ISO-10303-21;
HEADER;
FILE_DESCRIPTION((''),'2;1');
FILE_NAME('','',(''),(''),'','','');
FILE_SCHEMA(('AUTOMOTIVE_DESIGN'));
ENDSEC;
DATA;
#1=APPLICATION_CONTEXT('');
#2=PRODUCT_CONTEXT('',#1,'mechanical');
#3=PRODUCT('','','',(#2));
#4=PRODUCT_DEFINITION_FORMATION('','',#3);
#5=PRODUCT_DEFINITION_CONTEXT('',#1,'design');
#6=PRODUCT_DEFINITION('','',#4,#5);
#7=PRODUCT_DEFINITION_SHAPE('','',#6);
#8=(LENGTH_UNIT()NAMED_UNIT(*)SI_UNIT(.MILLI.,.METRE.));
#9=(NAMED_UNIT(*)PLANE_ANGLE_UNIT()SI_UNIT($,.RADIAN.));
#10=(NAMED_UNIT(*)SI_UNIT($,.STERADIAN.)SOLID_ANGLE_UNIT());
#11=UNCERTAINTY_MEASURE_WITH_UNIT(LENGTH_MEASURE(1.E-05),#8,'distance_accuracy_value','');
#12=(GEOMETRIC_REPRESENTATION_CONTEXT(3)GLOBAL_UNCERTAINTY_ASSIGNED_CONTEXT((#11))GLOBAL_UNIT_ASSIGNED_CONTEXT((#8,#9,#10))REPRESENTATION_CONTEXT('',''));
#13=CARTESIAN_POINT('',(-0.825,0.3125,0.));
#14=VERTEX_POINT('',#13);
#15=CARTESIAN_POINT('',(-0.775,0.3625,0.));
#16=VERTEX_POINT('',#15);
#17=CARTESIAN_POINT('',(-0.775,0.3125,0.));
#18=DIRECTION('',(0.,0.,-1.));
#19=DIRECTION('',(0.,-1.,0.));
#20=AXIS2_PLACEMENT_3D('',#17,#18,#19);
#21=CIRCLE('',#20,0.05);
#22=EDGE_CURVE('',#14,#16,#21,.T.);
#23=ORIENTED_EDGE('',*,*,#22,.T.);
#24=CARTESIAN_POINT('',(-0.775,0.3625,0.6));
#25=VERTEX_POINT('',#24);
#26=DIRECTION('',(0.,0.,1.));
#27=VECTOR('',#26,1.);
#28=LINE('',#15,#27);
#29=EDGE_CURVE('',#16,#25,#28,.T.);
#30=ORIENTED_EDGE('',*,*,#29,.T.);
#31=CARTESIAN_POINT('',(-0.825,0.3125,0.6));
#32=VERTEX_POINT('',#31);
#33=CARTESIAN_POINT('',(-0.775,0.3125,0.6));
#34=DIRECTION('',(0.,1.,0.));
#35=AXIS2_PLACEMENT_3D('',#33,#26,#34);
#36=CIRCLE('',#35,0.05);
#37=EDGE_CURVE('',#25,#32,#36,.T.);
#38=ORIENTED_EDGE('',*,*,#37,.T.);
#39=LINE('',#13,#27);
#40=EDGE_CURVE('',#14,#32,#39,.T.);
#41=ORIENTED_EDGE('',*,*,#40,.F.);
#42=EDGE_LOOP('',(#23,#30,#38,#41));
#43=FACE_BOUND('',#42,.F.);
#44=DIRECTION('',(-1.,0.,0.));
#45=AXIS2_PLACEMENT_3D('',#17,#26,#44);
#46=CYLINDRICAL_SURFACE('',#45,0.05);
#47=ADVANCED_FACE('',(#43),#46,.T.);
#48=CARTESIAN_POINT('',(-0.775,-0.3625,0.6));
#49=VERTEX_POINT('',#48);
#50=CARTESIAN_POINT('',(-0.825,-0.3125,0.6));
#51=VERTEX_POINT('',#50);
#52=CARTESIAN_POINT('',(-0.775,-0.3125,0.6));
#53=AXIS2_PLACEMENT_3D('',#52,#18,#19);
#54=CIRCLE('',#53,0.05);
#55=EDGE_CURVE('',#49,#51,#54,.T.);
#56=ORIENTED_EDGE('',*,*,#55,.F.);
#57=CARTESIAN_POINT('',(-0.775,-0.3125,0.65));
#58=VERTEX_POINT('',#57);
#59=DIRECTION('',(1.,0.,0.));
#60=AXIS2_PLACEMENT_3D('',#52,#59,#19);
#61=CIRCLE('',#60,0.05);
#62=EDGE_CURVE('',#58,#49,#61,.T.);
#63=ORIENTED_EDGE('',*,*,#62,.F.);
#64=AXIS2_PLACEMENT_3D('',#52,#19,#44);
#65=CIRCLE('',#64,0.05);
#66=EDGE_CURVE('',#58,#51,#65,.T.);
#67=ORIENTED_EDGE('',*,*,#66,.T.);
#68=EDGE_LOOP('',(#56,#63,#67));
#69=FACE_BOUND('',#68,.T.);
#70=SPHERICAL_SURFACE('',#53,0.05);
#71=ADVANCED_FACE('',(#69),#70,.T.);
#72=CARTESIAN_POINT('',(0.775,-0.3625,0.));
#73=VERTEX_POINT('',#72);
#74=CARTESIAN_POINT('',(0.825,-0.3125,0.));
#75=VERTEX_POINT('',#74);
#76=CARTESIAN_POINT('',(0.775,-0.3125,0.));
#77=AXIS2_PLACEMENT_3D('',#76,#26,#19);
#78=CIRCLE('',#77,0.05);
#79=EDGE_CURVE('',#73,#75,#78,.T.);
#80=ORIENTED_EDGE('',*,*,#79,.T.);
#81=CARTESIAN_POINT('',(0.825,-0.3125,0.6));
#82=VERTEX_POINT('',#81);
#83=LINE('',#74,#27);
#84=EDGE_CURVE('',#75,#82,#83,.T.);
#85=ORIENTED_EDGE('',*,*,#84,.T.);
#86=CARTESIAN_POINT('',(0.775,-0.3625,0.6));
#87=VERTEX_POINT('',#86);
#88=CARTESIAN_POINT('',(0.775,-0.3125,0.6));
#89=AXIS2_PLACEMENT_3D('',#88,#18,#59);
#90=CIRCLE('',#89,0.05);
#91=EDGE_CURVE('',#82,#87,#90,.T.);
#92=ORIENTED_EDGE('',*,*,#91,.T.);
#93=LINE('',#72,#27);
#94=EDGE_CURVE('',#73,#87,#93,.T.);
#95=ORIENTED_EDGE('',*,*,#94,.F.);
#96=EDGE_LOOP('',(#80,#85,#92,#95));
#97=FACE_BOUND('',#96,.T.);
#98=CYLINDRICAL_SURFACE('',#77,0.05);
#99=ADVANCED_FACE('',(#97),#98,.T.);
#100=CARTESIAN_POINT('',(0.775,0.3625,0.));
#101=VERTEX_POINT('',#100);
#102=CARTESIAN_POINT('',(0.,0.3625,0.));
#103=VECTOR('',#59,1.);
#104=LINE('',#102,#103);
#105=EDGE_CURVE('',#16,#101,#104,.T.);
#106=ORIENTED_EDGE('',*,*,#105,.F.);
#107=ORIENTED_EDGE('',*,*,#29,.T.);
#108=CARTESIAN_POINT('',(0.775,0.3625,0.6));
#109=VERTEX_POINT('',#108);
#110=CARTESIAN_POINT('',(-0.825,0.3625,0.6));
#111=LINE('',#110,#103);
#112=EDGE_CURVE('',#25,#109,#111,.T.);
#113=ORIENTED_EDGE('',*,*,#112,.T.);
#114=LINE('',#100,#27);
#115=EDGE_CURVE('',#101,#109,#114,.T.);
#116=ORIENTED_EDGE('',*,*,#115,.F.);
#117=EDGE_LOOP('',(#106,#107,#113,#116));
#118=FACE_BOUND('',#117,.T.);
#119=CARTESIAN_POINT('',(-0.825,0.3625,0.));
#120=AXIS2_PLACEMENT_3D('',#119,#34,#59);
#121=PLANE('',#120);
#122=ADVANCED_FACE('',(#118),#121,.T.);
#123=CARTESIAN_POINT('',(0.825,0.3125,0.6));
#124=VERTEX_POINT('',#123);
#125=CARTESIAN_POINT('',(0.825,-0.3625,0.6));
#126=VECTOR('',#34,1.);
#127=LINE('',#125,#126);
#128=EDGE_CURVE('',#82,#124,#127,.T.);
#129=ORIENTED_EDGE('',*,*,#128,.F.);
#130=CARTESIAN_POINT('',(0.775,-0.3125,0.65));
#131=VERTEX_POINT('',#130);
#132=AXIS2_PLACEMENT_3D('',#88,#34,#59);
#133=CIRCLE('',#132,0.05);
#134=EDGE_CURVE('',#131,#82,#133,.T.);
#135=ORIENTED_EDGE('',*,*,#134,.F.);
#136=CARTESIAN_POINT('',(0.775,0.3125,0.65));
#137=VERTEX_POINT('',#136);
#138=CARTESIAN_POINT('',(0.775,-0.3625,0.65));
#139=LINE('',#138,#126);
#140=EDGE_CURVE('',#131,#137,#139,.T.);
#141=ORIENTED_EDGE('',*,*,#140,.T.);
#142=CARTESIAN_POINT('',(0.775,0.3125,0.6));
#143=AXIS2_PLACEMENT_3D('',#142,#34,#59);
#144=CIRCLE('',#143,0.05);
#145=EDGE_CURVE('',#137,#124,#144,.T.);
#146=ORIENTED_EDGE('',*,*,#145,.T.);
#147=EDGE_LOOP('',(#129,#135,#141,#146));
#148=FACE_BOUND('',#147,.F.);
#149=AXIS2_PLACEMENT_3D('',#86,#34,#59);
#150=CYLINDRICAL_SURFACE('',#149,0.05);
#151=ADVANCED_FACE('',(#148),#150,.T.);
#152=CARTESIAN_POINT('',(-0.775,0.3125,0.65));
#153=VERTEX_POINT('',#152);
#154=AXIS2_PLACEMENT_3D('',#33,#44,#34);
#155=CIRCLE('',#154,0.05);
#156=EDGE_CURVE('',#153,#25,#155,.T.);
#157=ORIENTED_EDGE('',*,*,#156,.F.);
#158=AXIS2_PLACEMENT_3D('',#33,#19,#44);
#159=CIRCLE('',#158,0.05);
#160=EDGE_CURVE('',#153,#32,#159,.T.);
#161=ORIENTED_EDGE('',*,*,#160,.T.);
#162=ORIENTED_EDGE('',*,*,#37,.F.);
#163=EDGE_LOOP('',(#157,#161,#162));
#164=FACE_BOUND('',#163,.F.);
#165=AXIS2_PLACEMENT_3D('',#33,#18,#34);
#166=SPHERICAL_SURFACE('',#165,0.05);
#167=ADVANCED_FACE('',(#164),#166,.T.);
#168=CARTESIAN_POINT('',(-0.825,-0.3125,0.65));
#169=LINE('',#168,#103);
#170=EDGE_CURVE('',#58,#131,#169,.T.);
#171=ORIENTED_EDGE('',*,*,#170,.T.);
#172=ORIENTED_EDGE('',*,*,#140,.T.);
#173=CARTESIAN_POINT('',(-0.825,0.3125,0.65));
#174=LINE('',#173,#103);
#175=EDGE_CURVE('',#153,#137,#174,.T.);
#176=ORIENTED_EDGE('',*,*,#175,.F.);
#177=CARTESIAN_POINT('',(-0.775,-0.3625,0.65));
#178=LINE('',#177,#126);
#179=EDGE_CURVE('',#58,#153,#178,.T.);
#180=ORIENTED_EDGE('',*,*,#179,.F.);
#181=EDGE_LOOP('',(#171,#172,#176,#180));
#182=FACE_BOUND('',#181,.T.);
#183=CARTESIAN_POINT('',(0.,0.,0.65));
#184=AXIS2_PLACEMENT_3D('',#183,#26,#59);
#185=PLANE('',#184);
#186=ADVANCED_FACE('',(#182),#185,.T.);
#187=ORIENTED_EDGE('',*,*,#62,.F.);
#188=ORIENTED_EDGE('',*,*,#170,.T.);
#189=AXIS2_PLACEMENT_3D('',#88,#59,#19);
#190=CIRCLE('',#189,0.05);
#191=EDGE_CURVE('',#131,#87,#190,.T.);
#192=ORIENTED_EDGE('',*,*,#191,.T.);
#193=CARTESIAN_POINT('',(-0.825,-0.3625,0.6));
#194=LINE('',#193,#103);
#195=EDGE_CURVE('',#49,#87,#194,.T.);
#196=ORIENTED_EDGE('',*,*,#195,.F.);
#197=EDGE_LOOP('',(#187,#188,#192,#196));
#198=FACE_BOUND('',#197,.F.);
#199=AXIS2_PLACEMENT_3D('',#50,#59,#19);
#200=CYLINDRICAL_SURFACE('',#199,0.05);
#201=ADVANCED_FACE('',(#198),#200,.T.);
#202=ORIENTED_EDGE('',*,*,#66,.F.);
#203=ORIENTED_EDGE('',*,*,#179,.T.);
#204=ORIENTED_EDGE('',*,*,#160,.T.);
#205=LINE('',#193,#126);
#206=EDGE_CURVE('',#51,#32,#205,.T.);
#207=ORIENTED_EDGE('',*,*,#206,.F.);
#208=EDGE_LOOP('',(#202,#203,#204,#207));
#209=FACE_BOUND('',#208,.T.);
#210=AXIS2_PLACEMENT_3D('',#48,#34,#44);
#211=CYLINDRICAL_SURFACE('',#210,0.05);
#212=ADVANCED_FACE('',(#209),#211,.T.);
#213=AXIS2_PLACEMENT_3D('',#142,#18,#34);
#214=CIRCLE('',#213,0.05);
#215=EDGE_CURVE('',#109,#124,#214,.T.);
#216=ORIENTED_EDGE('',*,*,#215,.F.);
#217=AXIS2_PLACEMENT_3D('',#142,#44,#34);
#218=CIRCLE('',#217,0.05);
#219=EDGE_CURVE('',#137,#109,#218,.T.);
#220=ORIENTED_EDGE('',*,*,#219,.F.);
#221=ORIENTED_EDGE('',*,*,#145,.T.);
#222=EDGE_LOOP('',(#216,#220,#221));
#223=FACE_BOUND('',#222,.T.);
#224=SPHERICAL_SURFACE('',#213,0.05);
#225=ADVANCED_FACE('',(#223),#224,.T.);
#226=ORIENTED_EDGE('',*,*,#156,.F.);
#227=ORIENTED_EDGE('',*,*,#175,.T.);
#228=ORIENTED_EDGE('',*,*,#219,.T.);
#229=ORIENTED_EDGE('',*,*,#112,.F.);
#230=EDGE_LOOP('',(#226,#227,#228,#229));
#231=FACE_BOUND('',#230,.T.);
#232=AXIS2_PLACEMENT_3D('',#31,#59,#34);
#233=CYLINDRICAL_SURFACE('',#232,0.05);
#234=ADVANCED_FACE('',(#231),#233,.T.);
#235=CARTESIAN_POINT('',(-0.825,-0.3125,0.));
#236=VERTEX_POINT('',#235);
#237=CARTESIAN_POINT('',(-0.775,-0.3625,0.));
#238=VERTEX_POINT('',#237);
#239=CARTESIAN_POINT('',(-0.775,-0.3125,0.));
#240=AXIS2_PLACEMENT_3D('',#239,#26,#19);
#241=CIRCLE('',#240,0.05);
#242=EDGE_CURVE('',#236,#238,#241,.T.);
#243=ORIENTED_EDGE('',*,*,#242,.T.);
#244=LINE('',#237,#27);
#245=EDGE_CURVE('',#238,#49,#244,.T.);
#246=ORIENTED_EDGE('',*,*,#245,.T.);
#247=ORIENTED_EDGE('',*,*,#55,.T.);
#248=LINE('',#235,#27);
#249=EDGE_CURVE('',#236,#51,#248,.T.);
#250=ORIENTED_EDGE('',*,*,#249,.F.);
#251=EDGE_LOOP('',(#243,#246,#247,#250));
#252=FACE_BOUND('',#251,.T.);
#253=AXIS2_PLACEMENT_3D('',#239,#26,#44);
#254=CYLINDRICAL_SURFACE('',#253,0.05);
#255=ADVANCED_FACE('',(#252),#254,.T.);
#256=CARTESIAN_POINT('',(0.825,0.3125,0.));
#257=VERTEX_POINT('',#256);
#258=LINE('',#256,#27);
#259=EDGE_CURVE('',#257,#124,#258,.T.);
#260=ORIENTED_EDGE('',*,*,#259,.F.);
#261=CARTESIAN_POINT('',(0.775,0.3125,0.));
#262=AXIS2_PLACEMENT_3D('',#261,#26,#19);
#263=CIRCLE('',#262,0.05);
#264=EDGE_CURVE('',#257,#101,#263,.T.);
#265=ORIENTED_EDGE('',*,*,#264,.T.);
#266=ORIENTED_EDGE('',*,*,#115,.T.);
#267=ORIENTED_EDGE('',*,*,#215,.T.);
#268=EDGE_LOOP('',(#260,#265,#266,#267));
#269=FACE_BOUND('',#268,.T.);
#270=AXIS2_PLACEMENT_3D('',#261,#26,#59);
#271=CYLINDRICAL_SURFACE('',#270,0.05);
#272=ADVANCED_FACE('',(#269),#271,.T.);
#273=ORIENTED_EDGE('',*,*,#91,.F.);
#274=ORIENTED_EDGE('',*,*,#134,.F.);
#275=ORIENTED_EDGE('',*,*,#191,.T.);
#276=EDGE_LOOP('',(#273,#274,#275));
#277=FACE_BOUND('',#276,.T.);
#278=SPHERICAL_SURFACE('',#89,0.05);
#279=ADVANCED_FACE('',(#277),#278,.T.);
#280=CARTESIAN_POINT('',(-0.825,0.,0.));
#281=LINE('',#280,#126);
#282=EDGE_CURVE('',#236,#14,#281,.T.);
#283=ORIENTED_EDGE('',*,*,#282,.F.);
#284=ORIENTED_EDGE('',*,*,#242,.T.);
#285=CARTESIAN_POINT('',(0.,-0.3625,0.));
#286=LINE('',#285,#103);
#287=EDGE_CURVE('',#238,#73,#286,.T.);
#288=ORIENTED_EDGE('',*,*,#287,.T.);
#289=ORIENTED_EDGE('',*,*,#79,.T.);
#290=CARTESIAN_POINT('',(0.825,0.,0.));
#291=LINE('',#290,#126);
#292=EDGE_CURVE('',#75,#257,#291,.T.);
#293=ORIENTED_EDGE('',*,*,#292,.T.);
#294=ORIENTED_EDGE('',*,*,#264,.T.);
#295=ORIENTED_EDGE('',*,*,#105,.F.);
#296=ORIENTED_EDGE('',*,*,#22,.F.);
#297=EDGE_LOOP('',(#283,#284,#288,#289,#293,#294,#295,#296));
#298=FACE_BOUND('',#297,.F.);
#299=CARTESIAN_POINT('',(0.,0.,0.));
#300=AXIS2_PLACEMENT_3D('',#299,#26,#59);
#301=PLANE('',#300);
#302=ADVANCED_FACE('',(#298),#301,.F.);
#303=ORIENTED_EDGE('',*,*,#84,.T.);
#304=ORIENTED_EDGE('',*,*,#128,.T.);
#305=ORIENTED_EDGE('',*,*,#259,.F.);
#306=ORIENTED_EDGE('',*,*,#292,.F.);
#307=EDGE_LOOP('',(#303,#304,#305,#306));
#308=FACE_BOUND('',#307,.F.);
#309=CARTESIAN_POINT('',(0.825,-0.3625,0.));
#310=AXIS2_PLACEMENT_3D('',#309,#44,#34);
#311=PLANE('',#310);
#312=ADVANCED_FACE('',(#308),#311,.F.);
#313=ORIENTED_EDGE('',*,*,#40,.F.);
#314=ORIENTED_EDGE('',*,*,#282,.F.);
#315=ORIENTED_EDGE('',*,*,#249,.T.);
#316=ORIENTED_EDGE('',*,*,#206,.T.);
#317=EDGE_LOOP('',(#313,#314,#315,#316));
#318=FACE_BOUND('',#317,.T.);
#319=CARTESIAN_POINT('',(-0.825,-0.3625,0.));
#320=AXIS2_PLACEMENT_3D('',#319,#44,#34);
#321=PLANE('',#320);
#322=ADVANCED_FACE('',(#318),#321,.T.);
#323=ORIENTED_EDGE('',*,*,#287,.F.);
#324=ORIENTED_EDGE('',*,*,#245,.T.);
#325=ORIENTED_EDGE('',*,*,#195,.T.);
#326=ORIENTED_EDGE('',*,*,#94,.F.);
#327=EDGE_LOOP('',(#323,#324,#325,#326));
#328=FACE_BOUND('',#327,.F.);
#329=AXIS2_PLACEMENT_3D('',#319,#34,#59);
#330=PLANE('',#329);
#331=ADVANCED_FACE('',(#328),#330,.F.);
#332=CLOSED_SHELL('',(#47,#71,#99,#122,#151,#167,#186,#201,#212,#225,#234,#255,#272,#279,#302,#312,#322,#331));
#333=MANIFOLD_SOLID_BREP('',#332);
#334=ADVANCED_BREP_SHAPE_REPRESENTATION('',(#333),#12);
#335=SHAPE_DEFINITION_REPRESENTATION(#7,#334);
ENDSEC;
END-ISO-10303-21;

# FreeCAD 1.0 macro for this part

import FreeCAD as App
import Part
import Sketcher
from FreeCAD import Vector
Q = App.Units.Quantity


def edges_at(feature, points):
    """Names of the edges that pass closest to the given points."""
    edges = feature.Shape.Edges
    near = lambda p: min(range(len(edges)), key=lambda i: edges[i].distToShape(Part.Vertex(*p))[0])
    return sorted({f"Edge{near(p) + 1}" for p in points})


def add_polygon(sketch, points):
    """Adds a closed chain of lines whose ends are joined by coincident constraints."""
    first, n = sketch.GeometryCount, len(points)
    for a, b in zip(points, points[1:] + points[:1]):
        sketch.addGeometry(Part.LineSegment(App.Vector(*a, 0), App.Vector(*b, 0)), False)
    for i in range(n):
        sketch.addConstraint(Sketcher.Constraint("Coincident", first + i, 2, first + (i + 1) % n, 1))

doc = App.newDocument("Part")
body = doc.addObject("PartDesign::Body", "Body")

sketch1 = doc.addObject("Sketcher::SketchObject", "Sketch")
body.addObject(sketch1)
sketch1.AttachmentSupport = (doc.XY_Plane, [""])
sketch1.MapMode = "FlatFace"
add_polygon(sketch1, [(-0.8, 0.4), (-0.8, -0.4), (0.8, -0.4), (0.8, 0.4)])
sketch1.addConstraint(Sketcher.Constraint("Vertical", 0))
sketch1.addConstraint(Sketcher.Constraint("Horizontal", 1))
sketch1.addConstraint(Sketcher.Constraint("Vertical", 2))
sketch1.addConstraint(Sketcher.Constraint("Horizontal", 3))
sketch1.addConstraint(Sketcher.Constraint("Symmetric", 0, 2, 2, 2, -1, 1))
sketch1.addConstraint(Sketcher.Constraint("DistanceX", 1, 1, 1, 2, Q("1.65 mm")))
sketch1.addConstraint(Sketcher.Constraint("DistanceY", 0, 2, 0, 1, Q("0.725 mm")))
pad1 = doc.addObject("PartDesign::Pad", "Pad")
body.addObject(pad1)
pad1.Profile = sketch1
pad1.Length = 0.65
doc.recompute()

fillet = doc.addObject("PartDesign::Fillet", "Fillet")
body.addObject(fillet)
fillet.Base = (pad1, edges_at(pad1, [
    (-0.825, 0.362, 0.325),
    (0.825, 0.362, 0.325),
    (0, 0.362, 0.65),
    (0.825, -0.362, 0.325),
    (0.825, 0, 0.65),
    (-0.825, -0.362, 0.325),
    (0, -0.362, 0.65),
    (-0.825, 0, 0.65),
]))
fillet.Radius = 0.05

doc.recompute()
